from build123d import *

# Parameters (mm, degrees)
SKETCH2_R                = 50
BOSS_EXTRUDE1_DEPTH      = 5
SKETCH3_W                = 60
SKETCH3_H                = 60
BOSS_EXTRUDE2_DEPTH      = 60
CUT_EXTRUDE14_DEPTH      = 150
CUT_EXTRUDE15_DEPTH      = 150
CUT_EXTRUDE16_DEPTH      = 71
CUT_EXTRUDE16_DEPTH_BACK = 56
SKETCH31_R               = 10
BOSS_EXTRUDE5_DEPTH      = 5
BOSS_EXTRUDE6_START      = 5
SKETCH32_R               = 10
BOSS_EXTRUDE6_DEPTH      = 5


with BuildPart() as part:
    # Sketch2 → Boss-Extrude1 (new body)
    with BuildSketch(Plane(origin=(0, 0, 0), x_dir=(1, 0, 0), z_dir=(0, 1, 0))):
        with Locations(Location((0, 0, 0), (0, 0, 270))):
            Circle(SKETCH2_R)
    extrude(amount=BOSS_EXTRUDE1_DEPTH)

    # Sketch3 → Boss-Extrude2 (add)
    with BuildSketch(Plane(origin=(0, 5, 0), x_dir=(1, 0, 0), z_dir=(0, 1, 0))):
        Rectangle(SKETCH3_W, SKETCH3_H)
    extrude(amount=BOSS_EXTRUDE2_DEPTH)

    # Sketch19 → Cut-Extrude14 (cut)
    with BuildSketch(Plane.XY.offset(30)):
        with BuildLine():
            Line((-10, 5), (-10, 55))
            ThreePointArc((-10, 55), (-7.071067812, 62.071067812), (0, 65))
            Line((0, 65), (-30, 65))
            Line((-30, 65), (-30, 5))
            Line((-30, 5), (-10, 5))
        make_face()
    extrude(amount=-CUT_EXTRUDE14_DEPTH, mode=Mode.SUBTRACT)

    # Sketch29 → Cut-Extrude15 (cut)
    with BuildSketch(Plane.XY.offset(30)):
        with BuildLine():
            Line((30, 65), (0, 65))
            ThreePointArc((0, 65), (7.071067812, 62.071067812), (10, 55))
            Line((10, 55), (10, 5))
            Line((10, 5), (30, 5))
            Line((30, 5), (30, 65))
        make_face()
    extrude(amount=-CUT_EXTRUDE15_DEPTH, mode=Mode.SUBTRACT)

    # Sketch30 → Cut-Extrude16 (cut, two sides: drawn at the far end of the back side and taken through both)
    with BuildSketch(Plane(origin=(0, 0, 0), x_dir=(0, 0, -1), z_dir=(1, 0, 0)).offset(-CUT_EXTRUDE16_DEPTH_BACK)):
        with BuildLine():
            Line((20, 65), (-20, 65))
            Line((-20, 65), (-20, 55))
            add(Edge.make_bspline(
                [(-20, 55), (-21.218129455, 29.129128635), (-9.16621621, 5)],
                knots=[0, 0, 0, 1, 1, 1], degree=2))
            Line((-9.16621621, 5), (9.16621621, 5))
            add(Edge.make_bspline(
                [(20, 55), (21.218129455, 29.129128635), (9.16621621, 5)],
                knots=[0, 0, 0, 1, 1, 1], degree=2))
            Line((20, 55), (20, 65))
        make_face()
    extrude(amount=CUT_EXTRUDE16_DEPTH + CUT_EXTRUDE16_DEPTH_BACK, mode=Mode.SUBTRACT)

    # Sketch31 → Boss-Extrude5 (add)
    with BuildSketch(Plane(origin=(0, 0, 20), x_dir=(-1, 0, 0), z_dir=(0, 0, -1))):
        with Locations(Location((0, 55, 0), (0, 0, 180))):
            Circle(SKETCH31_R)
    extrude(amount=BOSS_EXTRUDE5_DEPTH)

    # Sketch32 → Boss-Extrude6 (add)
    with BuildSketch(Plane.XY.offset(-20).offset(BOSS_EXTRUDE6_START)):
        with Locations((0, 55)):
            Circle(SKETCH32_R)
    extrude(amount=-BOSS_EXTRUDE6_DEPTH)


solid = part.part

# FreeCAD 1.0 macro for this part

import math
import FreeCAD as App
import Part
import Sketcher

V = App.Vector
Q = App.Units.Quantity


def add_polygon(sketch, points):
    """Adds a closed chain of lines whose ends are joined by coincident constraints."""
    first, n = sketch.GeometryCount, len(points)
    for a, b in zip(points, points[1:] + points[:1]):
        sketch.addGeometry(Part.LineSegment(App.Vector(*a, 0), App.Vector(*b, 0)), False)
    for i in range(n):
        sketch.addConstraint(Sketcher.Constraint("Coincident", first + i, 2, first + (i + 1) % n, 1))

doc = App.newDocument("Part")
params = doc.addObject("Spreadsheet::Sheet", "Params")
for row, (alias, value) in enumerate([
    ("sketch1_diameter", "100 mm"),
    ("pad1_length", "5 mm"),
    ("sketch2_width", "60 mm"),
    ("pad2_length", "60 mm"),
    ("sketch3_radius", "10 mm"),
    ("sketch3_width", "30 mm"),
    ("sketch3_height", "50 mm"),
    ("pocket1_length", "150 mm"),
    ("sketch4_radius", "10 mm"),
    ("sketch4_width", "30 mm"),
    ("sketch4_height", "50 mm"),
    ("pocket2_length", "150 mm"),
    ("sketch5_width", "10 mm"),
    ("sketch6_diameter", "20 mm"),
    ("pad3_length", "5 mm"),
    ("sketch7_diameter", "20 mm"),
    ("pad4_length", "5 mm"),
], start=1):
    params.set(f"A{row}", alias)
    params.set(f"B{row}", "=" + value)
    params.setAlias(f"B{row}", alias)

body = doc.addObject("PartDesign::Body", "Body")

sketch1 = body.newObject("Sketcher::SketchObject", "Sketch")
sketch1.AttachmentSupport = (doc.getObject("XZ_Plane"), [""])
sketch1.MapMode = "FlatFace"
sketch1.addGeometry(Part.Circle(V(0, 0, 0), V(0, 0, 1), 50), False)
sketch1.addConstraint([
    Sketcher.Constraint("Coincident", 0, 3, -1, 1),
    Sketcher.Constraint("Diameter", 0, Q("100 mm")),
])
sketch1.setExpression("Constraints[1]", "Params.sketch1_diameter")
pad1 = body.newObject("PartDesign::Pad", "Pad")
pad1.Profile = sketch1
pad1.setExpression("Length", "Params.pad1_length")
pad1.Reversed = True

sketch2 = body.newObject("Sketcher::SketchObject", "Sketch001")
sketch2.AttachmentSupport = (doc.getObject("XZ_Plane"), [""])
sketch2.MapMode = "FlatFace"
sketch2.AttachmentOffset = App.Placement(V(0, 0, -5), App.Rotation())
add_polygon(sketch2, [(-30, -30), (-30, 30), (30, 30), (30, -30)])
sketch2.addConstraint([
    Sketcher.Constraint("Vertical", 0),
    Sketcher.Constraint("Horizontal", 1),
    Sketcher.Constraint("Vertical", 2),
    Sketcher.Constraint("Horizontal", 3),
    Sketcher.Constraint("Symmetric", 0, 2, 2, 2, -1, 1),
    Sketcher.Constraint("Equal", 3, 0),
    Sketcher.Constraint("DistanceX", 1, 1, 1, 2, Q("60 mm")),
])
sketch2.setExpression("Constraints[10]", "Params.sketch2_width")
pad2 = body.newObject("PartDesign::Pad", "Pad001")
pad2.Profile = sketch2
pad2.setExpression("Length", "Params.pad2_length")
pad2.Reversed = True

sketch3 = body.newObject("Sketcher::SketchObject", "Sketch002")
sketch3.AttachmentSupport = (doc.getObject("XY_Plane"), [""])
sketch3.MapMode = "FlatFace"
sketch3.AttachmentOffset = App.Placement(V(0, 0, 30), App.Rotation())
sketch3.addGeometry([
    Part.LineSegment(V(-10, 5, 0), V(-10, 55, 0)),
    Part.ArcOfCircle(Part.Circle(V(0, 55, 0), V(0, 0, 1), 10), math.radians(90), math.radians(180)),
    Part.LineSegment(V(0, 65, 0), V(-30, 65, 0)),
    Part.LineSegment(V(-30, 65, 0), V(-30, 5, 0)),
    Part.LineSegment(V(-30, 5, 0), V(-10, 5, 0)),
], False)
sketch3.addConstraint([
    Sketcher.Constraint("Tangent", 0, 2, 1, 2),
    Sketcher.Constraint("Tangent", 1, 1, 2, 1),
    Sketcher.Constraint("Coincident", 2, 2, 3, 1),
    Sketcher.Constraint("Coincident", 3, 2, 4, 1),
    Sketcher.Constraint("Coincident", 4, 2, 0, 1),
    Sketcher.Constraint("Vertical", 0),
    Sketcher.Constraint("Horizontal", 2),
    Sketcher.Constraint("Vertical", 3),
    Sketcher.Constraint("Horizontal", 4),
    Sketcher.Constraint("PointOnObject", 1, 3, -2),
    Sketcher.Constraint("Radius", 1, Q("10 mm")),
    Sketcher.Constraint("DistanceX", 2, 2, 2, 1, Q("30 mm")),
    Sketcher.Constraint("DistanceY", 0, 1, 0, 2, Q("50 mm")),
    Sketcher.Constraint("DistanceY", -1, 1, 1, 3, Q("55 mm")),
])
sketch3.setExpression("Constraints[10]", "Params.sketch3_radius")
sketch3.setExpression("Constraints[11]", "Params.sketch3_width")
sketch3.setExpression("Constraints[12]", "Params.sketch3_height")
pocket1 = body.newObject("PartDesign::Pocket", "Pocket")
pocket1.Profile = sketch3
pocket1.setExpression("Length", "Params.pocket1_length")

sketch4 = body.newObject("Sketcher::SketchObject", "Sketch003")
sketch4.AttachmentSupport = (doc.getObject("XY_Plane"), [""])
sketch4.MapMode = "FlatFace"
sketch4.AttachmentOffset = App.Placement(V(0, 0, 30), App.Rotation())
sketch4.addGeometry([
    Part.LineSegment(V(30, 65, 0), V(0, 65, 0)),
    Part.ArcOfCircle(Part.Circle(V(0, 55, 0), V(0, 0, 1), 10), math.radians(0), math.radians(90)),
    Part.LineSegment(V(10, 55, 0), V(10, 5, 0)),
    Part.LineSegment(V(10, 5, 0), V(30, 5, 0)),
    Part.LineSegment(V(30, 5, 0), V(30, 65, 0)),
], False)
sketch4.addConstraint([
    Sketcher.Constraint("Tangent", 0, 2, 1, 2),
    Sketcher.Constraint("Tangent", 1, 1, 2, 1),
    Sketcher.Constraint("Coincident", 2, 2, 3, 1),
    Sketcher.Constraint("Coincident", 3, 2, 4, 1),
    Sketcher.Constraint("Coincident", 4, 2, 0, 1),
    Sketcher.Constraint("Horizontal", 0),
    Sketcher.Constraint("Vertical", 2),
    Sketcher.Constraint("Horizontal", 3),
    Sketcher.Constraint("Vertical", 4),
    Sketcher.Constraint("PointOnObject", 1, 3, -2),
    Sketcher.Constraint("Radius", 1, Q("10 mm")),
    Sketcher.Constraint("DistanceX", 0, 2, 0, 1, Q("30 mm")),
    Sketcher.Constraint("DistanceY", 2, 2, 2, 1, Q("50 mm")),
    Sketcher.Constraint("DistanceY", -1, 1, 1, 3, Q("55 mm")),
])
sketch4.setExpression("Constraints[10]", "Params.sketch4_radius")
sketch4.setExpression("Constraints[11]", "Params.sketch4_width")
sketch4.setExpression("Constraints[12]", "Params.sketch4_height")
pocket2 = body.newObject("PartDesign::Pocket", "Pocket001")
pocket2.Profile = sketch4
pocket2.setExpression("Length", "Params.pocket2_length")

sketch5 = body.newObject("Sketcher::SketchObject", "Sketch004")
sketch5.AttachmentSupport = (doc.getObject("YZ_Plane"), [""])
sketch5.MapMode = "FlatFace"
sketch5.addGeometry([
    Part.LineSegment(V(65, -20, 0), V(65, 20, 0)),
    Part.LineSegment(V(65, 20, 0), V(55, 20, 0)),
    Part.BSplineCurve([V(55, 20, 0), V(29.129129, 21.218129, 0), V(5, 9.166216, 0)], [3, 3], [0, 1], False, 2, [1, 1, 1], False),
    Part.LineSegment(V(5, 9.166216, 0), V(5, -9.166216, 0)),
    Part.BSplineCurve([V(55, -20, 0), V(29.129129, -21.218129, 0), V(5, -9.166216, 0)], [3, 3], [0, 1], False, 2, [1, 1, 1], False),
    Part.LineSegment(V(55, -20, 0), V(65, -20, 0)),
], False)
sketch5.addConstraint([
    Sketcher.Constraint("Block", 2),
    Sketcher.Constraint("Block", 4),
    Sketcher.Constraint("Coincident", 0, 2, 1, 1),
    Sketcher.Constraint("Coincident", 1, 2, 2, 1),
    Sketcher.Constraint("Coincident", 2, 2, 3, 1),
    Sketcher.Constraint("Coincident", 3, 2, 4, 2),
    Sketcher.Constraint("Coincident", 4, 1, 5, 1),
    Sketcher.Constraint("Coincident", 5, 2, 0, 1),
    Sketcher.Constraint("Vertical", 0),
    Sketcher.Constraint("Horizontal", 1),
    Sketcher.Constraint("Horizontal", 5),
    Sketcher.Constraint("DistanceX", 1, 2, 1, 1, Q("10 mm")),
])
sketch5.setExpression("Constraints[11]", "Params.sketch5_width")
pocket3 = body.newObject("PartDesign::Pocket", "Pocket002")
pocket3.Profile = sketch5
pocket3.Type = "ThroughAll"
pocket3.Midplane = True

sketch6 = body.newObject("Sketcher::SketchObject", "Sketch005")
sketch6.AttachmentSupport = (doc.getObject("XY_Plane"), [""])
sketch6.MapMode = "FlatFace"
sketch6.AttachmentOffset = App.Placement(V(0, 0, 20), App.Rotation())
sketch6.addGeometry(Part.Circle(V(0, 55, 0), V(0, 0, 1), 10), False)
sketch6.addConstraint([
    Sketcher.Constraint("PointOnObject", 0, 3, -2),
    Sketcher.Constraint("Diameter", 0, Q("20 mm")),
    Sketcher.Constraint("DistanceY", -1, 1, 0, 3, Q("55 mm")),
])
sketch6.setExpression("Constraints[1]", "Params.sketch6_diameter")
pad3 = body.newObject("PartDesign::Pad", "Pad002")
pad3.Profile = sketch6
pad3.setExpression("Length", "Params.pad3_length")
pad3.Reversed = True

sketch7 = body.newObject("Sketcher::SketchObject", "Sketch006")
sketch7.AttachmentSupport = (doc.getObject("XY_Plane"), [""])
sketch7.MapMode = "FlatFace"
sketch7.AttachmentOffset = App.Placement(V(0, 0, -15), App.Rotation())
sketch7.addGeometry(Part.Circle(V(0, 55, 0), V(0, 0, 1), 10), False)
sketch7.addConstraint([
    Sketcher.Constraint("PointOnObject", 0, 3, -2),
    Sketcher.Constraint("Diameter", 0, Q("20 mm")),
    Sketcher.Constraint("DistanceY", -1, 1, 0, 3, Q("55 mm")),
])
sketch7.setExpression("Constraints[1]", "Params.sketch7_diameter")
pad4 = body.newObject("PartDesign::Pad", "Pad003")
pad4.Profile = sketch7
pad4.setExpression("Length", "Params.pad4_length")
pad4.Reversed = True

doc.recompute()
